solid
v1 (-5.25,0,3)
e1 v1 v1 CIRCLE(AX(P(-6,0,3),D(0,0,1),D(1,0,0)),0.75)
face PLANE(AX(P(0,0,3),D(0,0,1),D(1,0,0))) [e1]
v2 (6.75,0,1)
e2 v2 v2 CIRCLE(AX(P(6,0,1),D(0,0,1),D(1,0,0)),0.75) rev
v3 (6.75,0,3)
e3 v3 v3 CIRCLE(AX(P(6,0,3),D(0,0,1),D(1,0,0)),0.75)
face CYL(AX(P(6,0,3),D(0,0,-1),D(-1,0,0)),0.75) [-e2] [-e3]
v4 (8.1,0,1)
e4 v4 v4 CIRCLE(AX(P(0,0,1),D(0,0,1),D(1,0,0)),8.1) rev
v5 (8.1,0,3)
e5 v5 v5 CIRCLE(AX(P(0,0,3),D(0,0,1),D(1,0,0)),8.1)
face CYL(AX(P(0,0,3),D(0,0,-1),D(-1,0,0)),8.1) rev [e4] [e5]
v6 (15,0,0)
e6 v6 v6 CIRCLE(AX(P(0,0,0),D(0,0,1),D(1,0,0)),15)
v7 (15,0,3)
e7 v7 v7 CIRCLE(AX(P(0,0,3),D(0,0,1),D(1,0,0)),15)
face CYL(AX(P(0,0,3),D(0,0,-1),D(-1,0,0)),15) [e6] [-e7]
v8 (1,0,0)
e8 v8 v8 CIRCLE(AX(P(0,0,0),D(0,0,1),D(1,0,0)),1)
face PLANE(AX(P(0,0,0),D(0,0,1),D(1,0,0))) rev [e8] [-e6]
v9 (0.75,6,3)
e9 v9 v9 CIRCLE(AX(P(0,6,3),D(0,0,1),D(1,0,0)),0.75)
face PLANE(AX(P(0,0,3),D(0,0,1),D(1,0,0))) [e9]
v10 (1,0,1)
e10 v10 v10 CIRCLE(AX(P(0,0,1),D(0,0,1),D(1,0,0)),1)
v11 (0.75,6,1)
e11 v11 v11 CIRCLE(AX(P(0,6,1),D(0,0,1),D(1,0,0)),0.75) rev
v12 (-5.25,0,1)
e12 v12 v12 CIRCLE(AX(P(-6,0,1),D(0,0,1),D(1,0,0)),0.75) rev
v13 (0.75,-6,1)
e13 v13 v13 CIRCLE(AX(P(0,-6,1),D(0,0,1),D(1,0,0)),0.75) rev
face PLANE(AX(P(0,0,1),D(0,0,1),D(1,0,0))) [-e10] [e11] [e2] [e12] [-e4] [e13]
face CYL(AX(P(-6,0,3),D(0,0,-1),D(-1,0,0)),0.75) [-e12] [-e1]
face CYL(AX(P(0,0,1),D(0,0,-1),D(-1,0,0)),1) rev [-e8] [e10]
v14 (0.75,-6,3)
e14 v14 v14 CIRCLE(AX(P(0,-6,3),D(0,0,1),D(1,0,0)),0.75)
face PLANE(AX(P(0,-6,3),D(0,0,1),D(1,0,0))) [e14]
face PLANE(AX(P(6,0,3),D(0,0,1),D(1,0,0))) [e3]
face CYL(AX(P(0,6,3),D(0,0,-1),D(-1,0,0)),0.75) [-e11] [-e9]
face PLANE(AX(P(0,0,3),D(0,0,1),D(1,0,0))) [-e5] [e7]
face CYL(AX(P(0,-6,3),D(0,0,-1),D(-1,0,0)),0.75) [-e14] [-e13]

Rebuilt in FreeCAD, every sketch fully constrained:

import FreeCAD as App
import Part
import Sketcher
Q = App.Units.Quantity

doc = App.newDocument("Part")
body = doc.addObject("PartDesign::Body", "Body")

# Sketch on XY plane
sketch1 = body.newObject("Sketcher::SketchObject", "Sketch")
sketch1.AttachmentSupport = (doc.getObject("XY_Plane"), [""])
sketch1.MapMode = "FlatFace"
sketch1.addGeometry(Part.Circle(App.Vector(0, 0, 0), App.Vector(0, 0, 1), 8.1), False)
sketch1.addGeometry(Part.Circle(App.Vector(0, 0, 0), App.Vector(0, 0, 1), 1), False)
sketch1.addConstraint(Sketcher.Constraint("Coincident", 0, 3, -1, 1))
sketch1.addConstraint(Sketcher.Constraint("Coincident", 1, 3, -1, 1))
sketch1.addConstraint(Sketcher.Constraint("Diameter", 1, Q("2 mm")))
sketch1.addConstraint(Sketcher.Constraint("Diameter", 0, Q("16.2 mm")))
pad1 = body.newObject("PartDesign::Pad", "Pad")
pad1.Profile = sketch1
pad1.Length = 1

# Sketch on XY plane
sketch2 = body.newObject("Sketcher::SketchObject", "Sketch001")
sketch2.AttachmentSupport = (doc.getObject("XY_Plane"), [""])
sketch2.MapMode = "FlatFace"
sketch2.addGeometry(Part.Circle(App.Vector(0, 0, 0), App.Vector(0, 0, 1), 15), False)
sketch2.addGeometry(Part.Circle(App.Vector(0, 0, 0), App.Vector(0, 0, 1), 8.1), False)
sketch2.addGeometry(Part.Circle(App.Vector(-6, 0, 0), App.Vector(0, 0, 1), 0.8), False)
sketch2.addGeometry(Part.Circle(App.Vector(0, 6, 0), App.Vector(0, 0, 1), 0.8), False)
sketch2.addGeometry(Part.Circle(App.Vector(6, 0, 0), App.Vector(0, 0, 1), 0.8), False)
sketch2.addGeometry(Part.Circle(App.Vector(0, -6, 0), App.Vector(0, 0, 1), 0.8), False)
sketch2.addConstraint(Sketcher.Constraint("Coincident", 0, 3, -1, 1))
sketch2.addConstraint(Sketcher.Constraint("Coincident", 1, 3, -1, 1))
sketch2.addConstraint(Sketcher.Constraint("Equal", 2, 3))
sketch2.addConstraint(Sketcher.Constraint("Equal", 3, 4))
sketch2.addConstraint(Sketcher.Constraint("Equal", 4, 5))
sketch2.addConstraint(Sketcher.Constraint("Symmetric", 2, 3, 4, 3, -1, 1))
sketch2.addConstraint(Sketcher.Constraint("Symmetric", 3, 3, 5, 3, -1, 1))
sketch2.addConstraint(Sketcher.Constraint("PointOnObject", 2, 3, -1))
sketch2.addConstraint(Sketcher.Constraint("PointOnObject", 3, 3, -2))
sketch2.addConstraint(Sketcher.Constraint("Diameter", 0, Q("30 mm")))
sketch2.addConstraint(Sketcher.Constraint("Diameter", 1, Q("16.2 mm")))
sketch2.addConstraint(Sketcher.Constraint("Diameter", 2, Q("1.5 mm")))
sketch2.addConstraint(Sketcher.Constraint("DistanceX", 2, 3, -1, 1, Q("6 mm")))
sketch2.addConstraint(Sketcher.Constraint("DistanceY", -1, 1, 3, 3, Q("6 mm")))
pad2 = body.newObject("PartDesign::Pad", "Pad001")
pad2.Profile = sketch2
pad2.Length = 3

doc.recompute()
